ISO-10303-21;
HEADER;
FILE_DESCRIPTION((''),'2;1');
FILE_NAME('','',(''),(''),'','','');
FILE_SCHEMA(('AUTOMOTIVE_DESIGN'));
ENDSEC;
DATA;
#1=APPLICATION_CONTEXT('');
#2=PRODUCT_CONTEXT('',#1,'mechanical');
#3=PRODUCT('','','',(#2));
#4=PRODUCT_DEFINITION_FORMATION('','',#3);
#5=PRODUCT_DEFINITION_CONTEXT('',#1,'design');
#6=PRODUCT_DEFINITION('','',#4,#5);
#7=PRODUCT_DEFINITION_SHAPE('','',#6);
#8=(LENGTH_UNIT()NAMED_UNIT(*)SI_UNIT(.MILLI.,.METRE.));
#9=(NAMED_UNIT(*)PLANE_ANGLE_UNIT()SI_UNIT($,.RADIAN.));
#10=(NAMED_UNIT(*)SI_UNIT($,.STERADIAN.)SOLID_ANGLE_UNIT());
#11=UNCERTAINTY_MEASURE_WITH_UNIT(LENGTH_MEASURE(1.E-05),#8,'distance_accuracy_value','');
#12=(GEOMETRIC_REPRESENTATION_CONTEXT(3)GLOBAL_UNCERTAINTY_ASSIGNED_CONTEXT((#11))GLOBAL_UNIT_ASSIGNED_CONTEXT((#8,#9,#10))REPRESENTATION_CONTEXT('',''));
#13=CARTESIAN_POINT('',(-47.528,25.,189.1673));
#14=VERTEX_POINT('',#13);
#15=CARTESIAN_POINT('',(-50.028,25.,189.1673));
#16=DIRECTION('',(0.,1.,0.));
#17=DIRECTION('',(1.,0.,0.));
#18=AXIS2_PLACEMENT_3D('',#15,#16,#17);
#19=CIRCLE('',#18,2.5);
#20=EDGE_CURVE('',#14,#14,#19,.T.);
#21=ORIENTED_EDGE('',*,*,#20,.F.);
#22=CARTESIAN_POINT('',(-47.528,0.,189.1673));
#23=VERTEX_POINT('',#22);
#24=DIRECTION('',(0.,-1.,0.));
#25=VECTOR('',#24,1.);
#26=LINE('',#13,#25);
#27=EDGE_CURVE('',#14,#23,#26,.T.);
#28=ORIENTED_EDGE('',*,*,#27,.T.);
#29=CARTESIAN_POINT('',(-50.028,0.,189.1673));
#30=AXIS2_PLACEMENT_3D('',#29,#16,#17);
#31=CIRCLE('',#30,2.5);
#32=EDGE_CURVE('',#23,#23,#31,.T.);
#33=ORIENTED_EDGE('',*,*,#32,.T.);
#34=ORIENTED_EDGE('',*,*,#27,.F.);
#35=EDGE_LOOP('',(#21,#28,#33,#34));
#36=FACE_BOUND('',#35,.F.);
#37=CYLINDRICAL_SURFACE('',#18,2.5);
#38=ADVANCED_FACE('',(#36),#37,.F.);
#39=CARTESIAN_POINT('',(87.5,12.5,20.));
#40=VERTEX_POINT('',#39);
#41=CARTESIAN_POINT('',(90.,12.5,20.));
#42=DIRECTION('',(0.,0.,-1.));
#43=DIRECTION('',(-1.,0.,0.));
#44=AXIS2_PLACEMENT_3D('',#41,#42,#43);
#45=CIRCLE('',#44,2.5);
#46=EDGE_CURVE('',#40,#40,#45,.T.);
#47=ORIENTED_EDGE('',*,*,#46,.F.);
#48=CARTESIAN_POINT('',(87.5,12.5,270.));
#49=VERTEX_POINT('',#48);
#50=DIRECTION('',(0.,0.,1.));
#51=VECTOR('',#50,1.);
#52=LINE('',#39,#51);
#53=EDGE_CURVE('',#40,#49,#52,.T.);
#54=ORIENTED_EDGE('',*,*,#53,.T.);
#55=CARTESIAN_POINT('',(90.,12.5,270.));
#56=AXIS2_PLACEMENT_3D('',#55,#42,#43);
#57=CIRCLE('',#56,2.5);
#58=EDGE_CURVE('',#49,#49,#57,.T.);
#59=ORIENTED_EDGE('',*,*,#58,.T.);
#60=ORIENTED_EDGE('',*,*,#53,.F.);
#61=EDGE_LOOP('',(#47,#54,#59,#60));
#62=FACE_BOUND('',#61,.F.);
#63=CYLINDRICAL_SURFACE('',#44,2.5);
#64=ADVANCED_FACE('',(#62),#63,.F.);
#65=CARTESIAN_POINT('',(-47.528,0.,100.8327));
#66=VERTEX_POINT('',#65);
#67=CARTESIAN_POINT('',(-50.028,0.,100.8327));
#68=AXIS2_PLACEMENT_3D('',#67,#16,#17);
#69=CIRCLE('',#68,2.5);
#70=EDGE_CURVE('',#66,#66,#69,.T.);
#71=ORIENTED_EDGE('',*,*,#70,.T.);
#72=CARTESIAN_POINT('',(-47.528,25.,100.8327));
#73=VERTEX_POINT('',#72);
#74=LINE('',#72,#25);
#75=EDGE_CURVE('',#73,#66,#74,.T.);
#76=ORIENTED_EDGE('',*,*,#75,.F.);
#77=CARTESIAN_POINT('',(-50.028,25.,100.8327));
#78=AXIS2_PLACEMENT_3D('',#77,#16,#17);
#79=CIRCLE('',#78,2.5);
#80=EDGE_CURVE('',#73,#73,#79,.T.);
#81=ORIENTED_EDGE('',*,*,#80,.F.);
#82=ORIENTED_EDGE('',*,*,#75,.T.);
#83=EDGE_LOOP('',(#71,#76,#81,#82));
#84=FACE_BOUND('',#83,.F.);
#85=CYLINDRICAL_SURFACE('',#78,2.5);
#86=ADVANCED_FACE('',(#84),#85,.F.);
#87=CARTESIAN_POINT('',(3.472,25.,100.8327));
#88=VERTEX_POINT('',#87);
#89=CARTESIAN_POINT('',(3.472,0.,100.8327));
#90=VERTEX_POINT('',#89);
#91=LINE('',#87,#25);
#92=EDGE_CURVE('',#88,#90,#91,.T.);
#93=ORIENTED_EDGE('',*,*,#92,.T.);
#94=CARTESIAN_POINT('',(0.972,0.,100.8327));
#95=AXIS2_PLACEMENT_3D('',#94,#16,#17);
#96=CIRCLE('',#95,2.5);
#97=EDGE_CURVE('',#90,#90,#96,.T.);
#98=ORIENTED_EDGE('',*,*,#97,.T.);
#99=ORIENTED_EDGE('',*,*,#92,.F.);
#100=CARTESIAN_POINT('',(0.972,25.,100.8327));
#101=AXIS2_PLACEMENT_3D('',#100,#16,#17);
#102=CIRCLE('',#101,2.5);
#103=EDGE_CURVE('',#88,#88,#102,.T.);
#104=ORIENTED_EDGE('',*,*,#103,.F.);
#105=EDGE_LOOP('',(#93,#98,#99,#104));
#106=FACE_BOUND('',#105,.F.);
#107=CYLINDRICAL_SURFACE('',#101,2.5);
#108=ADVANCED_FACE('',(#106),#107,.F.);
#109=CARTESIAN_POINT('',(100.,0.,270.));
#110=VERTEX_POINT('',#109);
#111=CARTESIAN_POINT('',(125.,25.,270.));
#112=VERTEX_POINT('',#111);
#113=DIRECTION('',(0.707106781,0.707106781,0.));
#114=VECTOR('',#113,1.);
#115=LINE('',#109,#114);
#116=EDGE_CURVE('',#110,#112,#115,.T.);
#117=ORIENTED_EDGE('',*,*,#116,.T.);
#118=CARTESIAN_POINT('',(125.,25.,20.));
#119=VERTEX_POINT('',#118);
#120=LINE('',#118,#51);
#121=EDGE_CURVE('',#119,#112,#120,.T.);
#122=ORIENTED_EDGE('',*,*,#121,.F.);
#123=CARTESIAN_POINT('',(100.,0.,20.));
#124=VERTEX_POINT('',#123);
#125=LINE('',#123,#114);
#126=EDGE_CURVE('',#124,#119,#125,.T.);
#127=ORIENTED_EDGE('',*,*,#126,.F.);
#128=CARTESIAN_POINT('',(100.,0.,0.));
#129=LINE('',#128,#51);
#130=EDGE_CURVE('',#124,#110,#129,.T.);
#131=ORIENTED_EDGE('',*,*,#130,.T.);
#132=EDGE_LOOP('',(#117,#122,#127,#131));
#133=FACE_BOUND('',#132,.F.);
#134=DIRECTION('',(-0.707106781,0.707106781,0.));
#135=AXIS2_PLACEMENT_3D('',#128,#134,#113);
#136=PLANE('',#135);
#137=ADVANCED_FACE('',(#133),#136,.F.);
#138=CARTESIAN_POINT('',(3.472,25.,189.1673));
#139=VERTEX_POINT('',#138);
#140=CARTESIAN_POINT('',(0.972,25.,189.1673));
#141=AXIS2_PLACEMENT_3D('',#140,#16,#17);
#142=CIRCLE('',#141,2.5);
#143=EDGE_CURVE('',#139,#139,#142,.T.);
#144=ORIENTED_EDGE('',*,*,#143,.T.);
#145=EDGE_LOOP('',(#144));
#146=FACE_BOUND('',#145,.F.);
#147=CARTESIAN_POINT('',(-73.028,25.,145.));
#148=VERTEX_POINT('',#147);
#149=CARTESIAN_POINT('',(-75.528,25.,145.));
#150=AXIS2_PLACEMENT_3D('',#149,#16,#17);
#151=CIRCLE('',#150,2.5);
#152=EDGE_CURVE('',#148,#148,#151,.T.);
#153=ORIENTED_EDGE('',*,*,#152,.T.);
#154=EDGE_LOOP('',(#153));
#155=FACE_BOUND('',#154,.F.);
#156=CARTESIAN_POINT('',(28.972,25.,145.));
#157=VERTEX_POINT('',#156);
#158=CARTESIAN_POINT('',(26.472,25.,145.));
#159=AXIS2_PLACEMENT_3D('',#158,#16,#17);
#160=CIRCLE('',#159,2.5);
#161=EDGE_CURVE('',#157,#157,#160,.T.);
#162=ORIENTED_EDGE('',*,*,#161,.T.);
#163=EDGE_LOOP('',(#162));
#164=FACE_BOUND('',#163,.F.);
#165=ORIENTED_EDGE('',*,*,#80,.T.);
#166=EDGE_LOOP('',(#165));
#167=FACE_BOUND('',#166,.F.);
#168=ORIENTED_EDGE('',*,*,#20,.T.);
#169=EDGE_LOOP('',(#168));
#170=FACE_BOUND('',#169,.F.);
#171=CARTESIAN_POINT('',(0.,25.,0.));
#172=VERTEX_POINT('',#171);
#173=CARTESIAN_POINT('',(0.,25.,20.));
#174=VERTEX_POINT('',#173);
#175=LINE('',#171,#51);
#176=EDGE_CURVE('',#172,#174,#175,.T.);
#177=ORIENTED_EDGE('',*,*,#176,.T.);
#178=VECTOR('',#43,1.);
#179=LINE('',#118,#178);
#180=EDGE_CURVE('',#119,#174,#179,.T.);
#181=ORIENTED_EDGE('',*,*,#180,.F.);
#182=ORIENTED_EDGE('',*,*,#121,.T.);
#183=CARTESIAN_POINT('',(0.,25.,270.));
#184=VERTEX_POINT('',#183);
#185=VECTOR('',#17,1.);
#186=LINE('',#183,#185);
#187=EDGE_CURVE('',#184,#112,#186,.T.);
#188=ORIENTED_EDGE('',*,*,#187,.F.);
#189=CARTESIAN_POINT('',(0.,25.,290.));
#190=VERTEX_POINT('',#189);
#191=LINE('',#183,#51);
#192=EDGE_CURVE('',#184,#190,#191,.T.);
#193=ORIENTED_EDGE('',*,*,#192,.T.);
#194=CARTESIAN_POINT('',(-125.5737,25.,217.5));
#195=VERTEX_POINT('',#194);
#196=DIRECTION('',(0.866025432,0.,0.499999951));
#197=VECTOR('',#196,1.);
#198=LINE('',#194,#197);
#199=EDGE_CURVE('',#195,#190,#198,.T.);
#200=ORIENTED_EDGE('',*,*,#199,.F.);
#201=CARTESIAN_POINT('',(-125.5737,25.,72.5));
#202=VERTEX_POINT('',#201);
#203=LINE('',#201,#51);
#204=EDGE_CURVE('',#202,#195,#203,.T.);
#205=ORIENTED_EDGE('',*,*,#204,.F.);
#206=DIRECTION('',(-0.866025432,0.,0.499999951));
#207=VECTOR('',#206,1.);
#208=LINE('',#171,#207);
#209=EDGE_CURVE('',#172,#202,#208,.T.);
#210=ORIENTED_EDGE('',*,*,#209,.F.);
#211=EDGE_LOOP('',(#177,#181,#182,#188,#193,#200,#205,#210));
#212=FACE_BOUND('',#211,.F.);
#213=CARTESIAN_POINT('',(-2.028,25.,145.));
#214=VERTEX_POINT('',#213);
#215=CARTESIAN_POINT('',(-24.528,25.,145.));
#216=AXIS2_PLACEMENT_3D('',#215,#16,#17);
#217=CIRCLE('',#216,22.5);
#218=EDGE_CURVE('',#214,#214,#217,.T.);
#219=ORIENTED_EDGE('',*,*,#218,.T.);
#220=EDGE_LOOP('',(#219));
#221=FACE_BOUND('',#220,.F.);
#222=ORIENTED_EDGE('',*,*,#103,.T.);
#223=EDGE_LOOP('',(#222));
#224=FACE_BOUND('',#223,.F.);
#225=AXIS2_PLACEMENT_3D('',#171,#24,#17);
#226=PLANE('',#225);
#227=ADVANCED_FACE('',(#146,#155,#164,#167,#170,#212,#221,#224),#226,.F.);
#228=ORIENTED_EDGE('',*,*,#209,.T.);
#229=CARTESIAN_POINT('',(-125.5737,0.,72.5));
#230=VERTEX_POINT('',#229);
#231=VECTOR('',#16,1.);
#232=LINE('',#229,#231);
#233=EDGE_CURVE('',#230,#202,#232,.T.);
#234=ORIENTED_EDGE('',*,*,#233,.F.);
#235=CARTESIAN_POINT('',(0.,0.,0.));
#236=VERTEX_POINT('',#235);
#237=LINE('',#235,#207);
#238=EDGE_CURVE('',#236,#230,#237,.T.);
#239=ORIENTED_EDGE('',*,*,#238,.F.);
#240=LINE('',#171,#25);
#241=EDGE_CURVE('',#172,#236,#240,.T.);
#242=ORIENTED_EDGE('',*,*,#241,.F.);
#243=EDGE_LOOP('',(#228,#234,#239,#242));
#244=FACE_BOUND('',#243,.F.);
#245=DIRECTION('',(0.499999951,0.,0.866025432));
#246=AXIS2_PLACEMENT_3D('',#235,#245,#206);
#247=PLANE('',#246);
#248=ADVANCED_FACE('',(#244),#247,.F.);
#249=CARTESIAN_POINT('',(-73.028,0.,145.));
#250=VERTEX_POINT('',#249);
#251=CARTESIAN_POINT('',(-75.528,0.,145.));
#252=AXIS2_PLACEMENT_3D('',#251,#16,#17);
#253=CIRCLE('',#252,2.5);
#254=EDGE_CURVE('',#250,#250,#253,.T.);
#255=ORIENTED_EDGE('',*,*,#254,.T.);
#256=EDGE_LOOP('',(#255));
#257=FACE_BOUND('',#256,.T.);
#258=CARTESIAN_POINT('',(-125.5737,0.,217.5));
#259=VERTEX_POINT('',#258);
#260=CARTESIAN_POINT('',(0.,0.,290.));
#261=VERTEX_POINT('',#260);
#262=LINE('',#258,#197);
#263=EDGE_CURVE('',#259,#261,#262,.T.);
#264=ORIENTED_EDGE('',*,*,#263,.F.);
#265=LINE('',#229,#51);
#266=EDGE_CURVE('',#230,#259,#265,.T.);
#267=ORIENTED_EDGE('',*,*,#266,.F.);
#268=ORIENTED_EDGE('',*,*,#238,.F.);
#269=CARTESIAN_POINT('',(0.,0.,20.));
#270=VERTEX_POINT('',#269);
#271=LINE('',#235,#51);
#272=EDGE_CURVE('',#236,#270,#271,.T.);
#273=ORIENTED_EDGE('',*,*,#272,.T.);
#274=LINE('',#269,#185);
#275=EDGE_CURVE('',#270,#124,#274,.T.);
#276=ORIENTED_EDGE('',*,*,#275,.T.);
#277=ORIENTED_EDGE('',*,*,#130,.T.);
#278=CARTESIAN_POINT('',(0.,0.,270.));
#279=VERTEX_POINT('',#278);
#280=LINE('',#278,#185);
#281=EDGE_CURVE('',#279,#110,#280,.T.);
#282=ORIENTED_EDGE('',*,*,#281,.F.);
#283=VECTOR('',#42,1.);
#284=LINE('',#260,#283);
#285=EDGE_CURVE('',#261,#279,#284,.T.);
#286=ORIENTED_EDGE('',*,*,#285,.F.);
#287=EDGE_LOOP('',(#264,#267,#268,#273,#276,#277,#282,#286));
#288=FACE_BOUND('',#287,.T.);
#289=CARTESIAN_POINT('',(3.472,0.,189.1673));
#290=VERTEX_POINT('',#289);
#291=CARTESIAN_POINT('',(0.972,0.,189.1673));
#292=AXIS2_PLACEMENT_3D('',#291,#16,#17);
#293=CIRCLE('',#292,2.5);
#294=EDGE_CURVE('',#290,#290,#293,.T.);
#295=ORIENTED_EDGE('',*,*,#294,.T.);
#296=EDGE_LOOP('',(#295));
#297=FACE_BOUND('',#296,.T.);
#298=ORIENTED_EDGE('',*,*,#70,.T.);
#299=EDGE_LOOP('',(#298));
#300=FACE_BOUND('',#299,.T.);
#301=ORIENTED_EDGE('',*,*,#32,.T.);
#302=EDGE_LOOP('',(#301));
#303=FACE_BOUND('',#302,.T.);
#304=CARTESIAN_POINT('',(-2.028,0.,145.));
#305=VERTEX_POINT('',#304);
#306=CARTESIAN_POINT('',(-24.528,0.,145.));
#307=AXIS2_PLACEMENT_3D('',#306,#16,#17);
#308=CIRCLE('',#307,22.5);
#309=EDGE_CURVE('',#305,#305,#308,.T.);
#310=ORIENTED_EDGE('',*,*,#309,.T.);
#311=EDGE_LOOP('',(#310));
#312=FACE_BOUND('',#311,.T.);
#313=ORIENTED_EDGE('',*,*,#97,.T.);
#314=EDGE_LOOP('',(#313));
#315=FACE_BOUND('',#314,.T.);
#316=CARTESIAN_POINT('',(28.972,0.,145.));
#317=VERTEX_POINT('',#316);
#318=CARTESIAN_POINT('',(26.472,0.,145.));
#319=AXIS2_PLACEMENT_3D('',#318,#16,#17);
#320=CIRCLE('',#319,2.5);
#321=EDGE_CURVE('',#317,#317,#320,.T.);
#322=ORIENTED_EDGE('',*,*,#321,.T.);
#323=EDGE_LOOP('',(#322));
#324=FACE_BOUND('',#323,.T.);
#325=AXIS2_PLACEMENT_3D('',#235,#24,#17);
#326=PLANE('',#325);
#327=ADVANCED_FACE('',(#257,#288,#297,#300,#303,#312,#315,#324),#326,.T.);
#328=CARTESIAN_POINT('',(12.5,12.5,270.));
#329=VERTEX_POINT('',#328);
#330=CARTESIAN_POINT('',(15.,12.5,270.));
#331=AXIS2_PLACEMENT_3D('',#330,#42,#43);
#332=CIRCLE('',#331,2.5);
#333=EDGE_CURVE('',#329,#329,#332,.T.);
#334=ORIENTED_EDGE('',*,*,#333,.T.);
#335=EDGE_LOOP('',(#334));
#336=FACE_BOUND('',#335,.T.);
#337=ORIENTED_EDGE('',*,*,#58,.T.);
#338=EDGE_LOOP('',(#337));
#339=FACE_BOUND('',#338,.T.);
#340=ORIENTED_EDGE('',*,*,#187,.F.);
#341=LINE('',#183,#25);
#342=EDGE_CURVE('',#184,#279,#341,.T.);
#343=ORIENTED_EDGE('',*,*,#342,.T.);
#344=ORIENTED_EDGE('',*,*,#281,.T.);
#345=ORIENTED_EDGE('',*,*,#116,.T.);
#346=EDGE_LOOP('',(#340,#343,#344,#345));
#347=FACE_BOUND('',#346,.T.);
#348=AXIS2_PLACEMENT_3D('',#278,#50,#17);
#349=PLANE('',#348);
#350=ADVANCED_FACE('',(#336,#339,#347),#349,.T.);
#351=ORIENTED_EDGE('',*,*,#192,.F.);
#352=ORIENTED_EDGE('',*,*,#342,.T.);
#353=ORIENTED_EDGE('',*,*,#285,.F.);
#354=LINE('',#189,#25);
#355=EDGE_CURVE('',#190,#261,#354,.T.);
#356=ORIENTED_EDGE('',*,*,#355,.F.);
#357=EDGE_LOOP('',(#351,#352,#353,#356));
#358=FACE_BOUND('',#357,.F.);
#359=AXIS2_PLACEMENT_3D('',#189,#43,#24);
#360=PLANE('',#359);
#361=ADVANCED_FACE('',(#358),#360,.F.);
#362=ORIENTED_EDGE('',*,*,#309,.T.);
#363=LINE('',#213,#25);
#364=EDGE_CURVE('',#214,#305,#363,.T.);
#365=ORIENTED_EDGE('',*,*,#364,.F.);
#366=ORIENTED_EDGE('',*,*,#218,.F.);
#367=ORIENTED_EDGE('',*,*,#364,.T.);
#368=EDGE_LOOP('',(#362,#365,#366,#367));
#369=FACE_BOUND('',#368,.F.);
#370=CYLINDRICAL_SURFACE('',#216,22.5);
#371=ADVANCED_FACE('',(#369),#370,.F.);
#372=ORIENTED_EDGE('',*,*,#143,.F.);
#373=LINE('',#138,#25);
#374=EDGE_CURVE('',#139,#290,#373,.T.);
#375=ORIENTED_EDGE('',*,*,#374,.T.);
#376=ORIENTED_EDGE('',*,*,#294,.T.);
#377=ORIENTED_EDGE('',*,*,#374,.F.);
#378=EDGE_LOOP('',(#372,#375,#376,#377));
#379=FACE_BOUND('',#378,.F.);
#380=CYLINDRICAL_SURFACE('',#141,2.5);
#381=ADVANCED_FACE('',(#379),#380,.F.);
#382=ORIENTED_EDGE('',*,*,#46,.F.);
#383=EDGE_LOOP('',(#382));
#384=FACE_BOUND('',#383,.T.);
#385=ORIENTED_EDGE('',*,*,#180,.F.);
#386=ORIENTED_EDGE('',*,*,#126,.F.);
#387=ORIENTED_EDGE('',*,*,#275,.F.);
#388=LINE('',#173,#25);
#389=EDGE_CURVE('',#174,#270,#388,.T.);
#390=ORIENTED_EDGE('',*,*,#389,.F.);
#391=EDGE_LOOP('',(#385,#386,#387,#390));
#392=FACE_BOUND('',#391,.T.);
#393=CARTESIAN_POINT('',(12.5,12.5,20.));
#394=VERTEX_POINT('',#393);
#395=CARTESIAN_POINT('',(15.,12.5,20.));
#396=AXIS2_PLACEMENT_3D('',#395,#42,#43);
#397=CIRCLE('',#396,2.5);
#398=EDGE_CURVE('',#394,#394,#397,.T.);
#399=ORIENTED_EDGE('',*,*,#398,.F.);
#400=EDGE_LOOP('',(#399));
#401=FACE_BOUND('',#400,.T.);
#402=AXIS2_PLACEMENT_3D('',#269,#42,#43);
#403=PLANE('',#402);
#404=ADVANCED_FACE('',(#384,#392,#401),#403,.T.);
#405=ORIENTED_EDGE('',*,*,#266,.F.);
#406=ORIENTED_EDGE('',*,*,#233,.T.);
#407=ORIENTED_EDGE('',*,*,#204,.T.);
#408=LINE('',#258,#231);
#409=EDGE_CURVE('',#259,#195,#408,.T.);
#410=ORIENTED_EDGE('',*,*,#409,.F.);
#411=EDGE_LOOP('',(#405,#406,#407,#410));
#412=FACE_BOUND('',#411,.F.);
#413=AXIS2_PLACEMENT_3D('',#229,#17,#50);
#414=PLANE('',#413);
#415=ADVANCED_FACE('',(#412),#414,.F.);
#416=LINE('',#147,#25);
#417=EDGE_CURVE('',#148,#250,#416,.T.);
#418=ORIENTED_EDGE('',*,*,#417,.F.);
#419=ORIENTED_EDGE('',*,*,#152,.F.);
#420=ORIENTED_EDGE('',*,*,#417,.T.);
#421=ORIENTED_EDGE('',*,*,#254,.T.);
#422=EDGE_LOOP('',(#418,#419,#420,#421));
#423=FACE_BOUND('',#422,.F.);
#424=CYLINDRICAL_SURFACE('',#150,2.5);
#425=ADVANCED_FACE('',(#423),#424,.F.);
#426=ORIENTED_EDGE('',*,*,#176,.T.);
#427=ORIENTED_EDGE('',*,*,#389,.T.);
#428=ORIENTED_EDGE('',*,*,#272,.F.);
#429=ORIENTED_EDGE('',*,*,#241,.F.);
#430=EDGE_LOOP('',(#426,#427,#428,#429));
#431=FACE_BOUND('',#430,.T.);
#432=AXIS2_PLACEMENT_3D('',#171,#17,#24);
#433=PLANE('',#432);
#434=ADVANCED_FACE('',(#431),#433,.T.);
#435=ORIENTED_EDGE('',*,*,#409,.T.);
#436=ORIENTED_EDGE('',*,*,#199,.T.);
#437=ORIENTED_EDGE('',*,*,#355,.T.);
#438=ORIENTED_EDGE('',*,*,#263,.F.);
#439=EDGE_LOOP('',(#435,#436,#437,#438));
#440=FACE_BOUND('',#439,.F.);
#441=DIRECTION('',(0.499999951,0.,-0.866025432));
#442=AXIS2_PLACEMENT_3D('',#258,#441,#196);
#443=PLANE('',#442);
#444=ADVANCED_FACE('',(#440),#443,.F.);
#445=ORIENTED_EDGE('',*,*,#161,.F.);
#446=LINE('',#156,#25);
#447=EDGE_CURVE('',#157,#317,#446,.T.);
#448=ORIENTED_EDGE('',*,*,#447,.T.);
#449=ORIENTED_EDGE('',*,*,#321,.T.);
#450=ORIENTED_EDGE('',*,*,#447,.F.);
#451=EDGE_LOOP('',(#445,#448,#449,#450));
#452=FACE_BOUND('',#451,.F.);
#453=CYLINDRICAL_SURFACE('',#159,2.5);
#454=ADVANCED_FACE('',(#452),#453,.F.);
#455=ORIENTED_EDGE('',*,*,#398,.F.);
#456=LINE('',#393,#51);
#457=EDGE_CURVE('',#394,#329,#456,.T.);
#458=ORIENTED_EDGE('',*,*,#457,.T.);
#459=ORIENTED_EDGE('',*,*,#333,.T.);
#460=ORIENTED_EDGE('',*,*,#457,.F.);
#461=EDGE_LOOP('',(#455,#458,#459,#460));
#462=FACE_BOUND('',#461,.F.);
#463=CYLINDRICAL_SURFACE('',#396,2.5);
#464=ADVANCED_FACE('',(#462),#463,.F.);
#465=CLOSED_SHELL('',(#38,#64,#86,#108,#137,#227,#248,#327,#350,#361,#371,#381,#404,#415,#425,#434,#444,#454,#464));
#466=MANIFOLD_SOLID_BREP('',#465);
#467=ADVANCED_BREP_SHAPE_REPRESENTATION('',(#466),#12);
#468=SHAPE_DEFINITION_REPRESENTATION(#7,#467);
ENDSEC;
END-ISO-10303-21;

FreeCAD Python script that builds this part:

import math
import FreeCAD as App
import Part
import Sketcher

V = App.Vector
Q = App.Units.Quantity

doc = App.newDocument("Part")
params = doc.addObject("Spreadsheet::Sheet", "Params")
for row, (alias, value) in enumerate([
    ("sketch1_diameter", "8 mm"),
    ("sketch1_width", "100 mm"),
    ("sketch1_height", "25 mm"),
    ("pad1_length", "20 mm"),
    ("sketch2_width", "100 mm"),
    ("sketch2_width2", "125 mm"),
    ("sketch2_height", "25 mm"),
    ("pad2_length", "250 mm"),
    ("sketch3_diameter", "8 mm"),
    ("sketch3_width", "100 mm"),
    ("sketch3_height", "25 mm"),
    ("pad3_length", "20 mm"),
    ("sketch4_height", "290 mm"),
    ("sketch4_height2", "145 mm"),
    ("pad4_length", "25 mm"),
    ("sketch5_diameter", "6 mm"),
    ("sketch5_diameter2", "3 mm"),
    ("sketch6_diameter", "24 mm"),
    ("sketch6_diameter2", "6 mm"),
    ("pocket2_length", "5 mm"),
    ("sketch7_diameter", "25 mm"),
    ("sketch7_diameter2", "8 mm"),
    ("pocket3_length", "7 mm"),
    ("sketch8_diameter", "4 mm"),
    ("sketch8_diameter2", "8 mm"),
    ("sketch9_radius", "4 mm"),
    ("pocket5_length", "3 mm"),
    ("sketch10_diameter", "4 mm"),
    ("sketch11_width", "100 mm"),
    ("sketch11_height", "25 mm"),
    ("pocket7_length", "20 mm"),
    ("sketch12_diameter", "8 mm"),
    ("sketch12_width", "100 mm"),
    ("sketch12_height", "25 mm"),
    ("pocket8_length", "20 mm"),
    ("sketch13_diameter", "5 mm"),
    ("sketch14_diameter", "45 mm"),
    ("sketch15_diameter", "5 mm"),
], start=1):
    params.set(f"A{row}", alias)
    params.set(f"B{row}", "=" + value)
    params.setAlias(f"B{row}", alias)

body = doc.addObject("PartDesign::Body", "Body")

sketch1 = body.newObject("Sketcher::SketchObject", "Sketch")
sketch1.AttachmentSupport = (doc.getObject("XY_Plane"), [""])
sketch1.MapMode = "FlatFace"
sketch1.addGeometry(Part.LineSegment(V(0, 25, 0), V(0, 0, 0)), False)
sketch1.addGeometry(Part.LineSegment(V(0, 0, 0), V(100, 0, 0)), False)
sketch1.addGeometry(Part.LineSegment(V(100, 0, 0), V(213.7922, 113.7922, 0)), False)
sketch1.addGeometry(Part.LineSegment(V(213.7922, 113.7922, 0), V(200.5844, 163.0844, 0)), False)
sketch1.addGeometry(Part.LineSegment(V(200.5844, 163.0844, 0), V(151.2922, 176.2922, 0)), False)
sketch1.addGeometry(Part.LineSegment(V(151.2922, 176.2922, 0), V(0, 25, 0)), False)
sketch1.addGeometry(Part.Circle(V(164.5, 127, 0), V(0, 0, 1), 4), False)
sketch1.addConstraint(Sketcher.Constraint("Coincident", 0, 2, 1, 1))
sketch1.addConstraint(Sketcher.Constraint("Coincident", 1, 2, 2, 1))
sketch1.addConstraint(Sketcher.Constraint("Coincident", 2, 2, 3, 1))
sketch1.addConstraint(Sketcher.Constraint("Coincident", 3, 2, 4, 1))
sketch1.addConstraint(Sketcher.Constraint("Coincident", 4, 2, 5, 1))
sketch1.addConstraint(Sketcher.Constraint("Coincident", 5, 2, 0, 1))
sketch1.addConstraint(Sketcher.Constraint("Vertical", 0))
sketch1.addConstraint(Sketcher.Constraint("Horizontal", 1))
sketch1.addConstraint(Sketcher.Constraint("Coincident", 0, 2, -1, 1))
sketch1.addConstraint(Sketcher.Constraint("Parallel", 2, 5))
sketch1.addConstraint(Sketcher.Constraint("Equal", 3, 4))
sketch1.addConstraint(Sketcher.Constraint("Diameter", 6, 8.0))
sketch1.addConstraint(Sketcher.Constraint("DistanceX", 1, 1, 1, 2, 100.0))
sketch1.addConstraint(Sketcher.Constraint("DistanceY", 0, 2, 0, 1, 25.0))
sketch1.addConstraint(Sketcher.Constraint("Angle", 2, Q("45 deg")))
sketch1.addConstraint(Sketcher.Constraint("DistanceY", -1, 1, 6, 3, 127.0))
sketch1.addConstraint(Sketcher.Constraint("Angle", 3, Q("105 deg")))
sketch1.addConstraint(Sketcher.Constraint("Angle", 4, Q("165 deg")))
sketch1.addConstraint(Sketcher.Constraint("DistanceX", -1, 1, 6, 3, 164.5))
sketch1.addConstraint(Sketcher.Constraint("Distance", 2, 160.9265))
sketch1.setExpression("Constraints[11]", "Params.sketch1_diameter")
sketch1.setExpression("Constraints[12]", "Params.sketch1_width")
sketch1.setExpression("Constraints[13]", "Params.sketch1_height")
pad1 = body.newObject("PartDesign::Pad", "Pad")
pad1.Profile = sketch1
pad1.setExpression("Length", "Params.pad1_length")

sketch2 = body.newObject("Sketcher::SketchObject", "Sketch001")
sketch2.AttachmentSupport = (doc.getObject("XY_Plane"), [""])
sketch2.MapMode = "FlatFace"
sketch2.AttachmentOffset = App.Placement(V(0, 0, 20), App.Rotation())
sketch2.addGeometry(Part.LineSegment(V(0, 25, 0), V(0, 0, 0)), False)
sketch2.addGeometry(Part.LineSegment(V(0, 0, 0), V(100, 0, 0)), False)
sketch2.addGeometry(Part.LineSegment(V(100, 0, 0), V(125, 25, 0)), False)
sketch2.addGeometry(Part.LineSegment(V(125, 25, 0), V(0, 25, 0)), False)
sketch2.addConstraint(Sketcher.Constraint("Coincident", 0, 2, 1, 1))
sketch2.addConstraint(Sketcher.Constraint("Coincident", 1, 2, 2, 1))
sketch2.addConstraint(Sketcher.Constraint("Coincident", 2, 2, 3, 1))
sketch2.addConstraint(Sketcher.Constraint("Coincident", 3, 2, 0, 1))
sketch2.addConstraint(Sketcher.Constraint("Vertical", 0))
sketch2.addConstraint(Sketcher.Constraint("Horizontal", 1))
sketch2.addConstraint(Sketcher.Constraint("Horizontal", 3))
sketch2.addConstraint(Sketcher.Constraint("Coincident", 0, 2, -1, 1))
sketch2.addConstraint(Sketcher.Constraint("DistanceX", 1, 1, 1, 2, 100.0))
sketch2.addConstraint(Sketcher.Constraint("DistanceX", 3, 2, 3, 1, 125.0))
sketch2.addConstraint(Sketcher.Constraint("DistanceY", 0, 2, 0, 1, 25.0))
sketch2.setExpression("Constraints[8]", "Params.sketch2_width")
sketch2.setExpression("Constraints[9]", "Params.sketch2_width2")
sketch2.setExpression("Constraints[10]", "Params.sketch2_height")
pad2 = body.newObject("PartDesign::Pad", "Pad001")
pad2.Profile = sketch2
pad2.setExpression("Length", "Params.pad2_length")

sketch3 = body.newObject("Sketcher::SketchObject", "Sketch002")
sketch3.AttachmentSupport = (doc.getObject("XY_Plane"), [""])
sketch3.MapMode = "FlatFace"
sketch3.AttachmentOffset = App.Placement(V(0, 0, 270), App.Rotation())
sketch3.addGeometry(Part.LineSegment(V(151.2922, 176.2922, 0), V(0, 25, 0)), False)
sketch3.addGeometry(Part.LineSegment(V(0, 25, 0), V(0, 0, 0)), False)
sketch3.addGeometry(Part.LineSegment(V(0, 0, 0), V(100, 0, 0)), False)
sketch3.addGeometry(Part.LineSegment(V(100, 0, 0), V(213.7922, 113.7922, 0)), False)
sketch3.addGeometry(Part.LineSegment(V(213.7922, 113.7922, 0), V(200.5844, 163.0844, 0)), False)
sketch3.addGeometry(Part.LineSegment(V(200.5844, 163.0844, 0), V(151.2922, 176.2922, 0)), False)
sketch3.addGeometry(Part.Circle(V(164.5, 127, 0), V(0, 0, 1), 4), False)
sketch3.addConstraint(Sketcher.Constraint("Coincident", 0, 2, 1, 1))
sketch3.addConstraint(Sketcher.Constraint("Coincident", 1, 2, 2, 1))
sketch3.addConstraint(Sketcher.Constraint("Coincident", 2, 2, 3, 1))
sketch3.addConstraint(Sketcher.Constraint("Coincident", 3, 2, 4, 1))
sketch3.addConstraint(Sketcher.Constraint("Coincident", 4, 2, 5, 1))
sketch3.addConstraint(Sketcher.Constraint("Coincident", 5, 2, 0, 1))
sketch3.addConstraint(Sketcher.Constraint("Vertical", 1))
sketch3.addConstraint(Sketcher.Constraint("Horizontal", 2))
sketch3.addConstraint(Sketcher.Constraint("Coincident", 1, 2, -1, 1))
sketch3.addConstraint(Sketcher.Constraint("Parallel", 0, 3))
sketch3.addConstraint(Sketcher.Constraint("Equal", 4, 5))
sketch3.addConstraint(Sketcher.Constraint("Diameter", 6, 8.0))
sketch3.addConstraint(Sketcher.Constraint("DistanceX", 2, 1, 2, 2, 100.0))
sketch3.addConstraint(Sketcher.Constraint("DistanceY", 1, 2, 1, 1, 25.0))
sketch3.addConstraint(Sketcher.Constraint("Angle", 0, Q("-135 deg")))
sketch3.addConstraint(Sketcher.Constraint("Angle", 4, Q("105 deg")))
sketch3.addConstraint(Sketcher.Constraint("Angle", 5, Q("165 deg")))
sketch3.addConstraint(Sketcher.Constraint("DistanceY", -1, 1, 6, 3, 127.0))
sketch3.addConstraint(Sketcher.Constraint("DistanceX", -1, 1, 6, 3, 164.5))
sketch3.addConstraint(Sketcher.Constraint("Distance", 0, 213.9595))
sketch3.setExpression("Constraints[11]", "Params.sketch3_diameter")
sketch3.setExpression("Constraints[12]", "Params.sketch3_width")
sketch3.setExpression("Constraints[13]", "Params.sketch3_height")
pad3 = body.newObject("PartDesign::Pad", "Pad002")
pad3.Profile = sketch3
pad3.setExpression("Length", "Params.pad3_length")

sketch4 = body.newObject("Sketcher::SketchObject", "Sketch003")
sketch4.AttachmentSupport = (doc.getObject("XZ_Plane"), [""])
sketch4.MapMode = "FlatFace"
sketch4.addGeometry(Part.LineSegment(V(-125.5737, 72.5, 0), V(0, 0, 0)), False)
sketch4.addGeometry(Part.LineSegment(V(0, 0, 0), V(0, 290, 0)), False)
sketch4.addGeometry(Part.LineSegment(V(0, 290, 0), V(-125.5737, 217.5, 0)), False)
sketch4.addGeometry(Part.LineSegment(V(-125.5737, 217.5, 0), V(-125.5737, 72.5, 0)), False)
sketch4.addConstraint(Sketcher.Constraint("Coincident", 0, 2, 1, 1))
sketch4.addConstraint(Sketcher.Constraint("Coincident", 1, 2, 2, 1))
sketch4.addConstraint(Sketcher.Constraint("Coincident", 2, 2, 3, 1))
sketch4.addConstraint(Sketcher.Constraint("Coincident", 3, 2, 0, 1))
sketch4.addConstraint(Sketcher.Constraint("Vertical", 1))
sketch4.addConstraint(Sketcher.Constraint("Vertical", 3))
sketch4.addConstraint(Sketcher.Constraint("Coincident", 0, 2, -1, 1))
sketch4.addConstraint(Sketcher.Constraint("Equal", 0, 2))
sketch4.addConstraint(Sketcher.Constraint("DistanceY", 1, 1, 1, 2, 290.0))
sketch4.addConstraint(Sketcher.Constraint("DistanceY", 3, 2, 3, 1, 145.0))
sketch4.addConstraint(Sketcher.Constraint("Angle", 0, Q("-30 deg")))
sketch4.setExpression("Constraints[8]", "Params.sketch4_height")
sketch4.setExpression("Constraints[9]", "Params.sketch4_height2")
pad4 = body.newObject("PartDesign::Pad", "Pad003")
pad4.Profile = sketch4
pad4.setExpression("Length", "Params.pad4_length")
pad4.Reversed = True

sketch5 = body.newObject("Sketcher::SketchObject", "Sketch004")
sketch5.AttachmentSupport = (doc.getObject("XZ_Plane"), [""])
sketch5.MapMode = "FlatFace"
sketch5.AttachmentOffset = App.Placement(V(0, 0, -25), App.Rotation())
sketch5.addGeometry(Part.Circle(V(-24.528, 145, 0), V(0, 0, 1), 3), False)
sketch5.addGeometry(Part.Circle(V(-31.528, 145, 0), V(0, 0, 1), 1.5), False)
sketch5.addGeometry(Part.Circle(V(-21.028, 151.0622, 0), V(0, 0, 1), 1.5), False)
sketch5.addGeometry(Part.Circle(V(-21.028, 138.9378, 0), V(0, 0, 1), 1.5), False)
sketch5.addConstraint(Sketcher.Constraint("Equal", 1, 2))
sketch5.addConstraint(Sketcher.Constraint("Equal", 2, 3))
sketch5.addConstraint(Sketcher.Constraint("Horizontal", 0, 3, 1, 3))
sketch5.addConstraint(Sketcher.Constraint("Vertical", 2, 3, 3, 3))
sketch5.addConstraint(Sketcher.Constraint("Diameter", 0, 6.0))
sketch5.addConstraint(Sketcher.Constraint("Diameter", 1, 3.0))
sketch5.addConstraint(Sketcher.Constraint("DistanceX", 1, 3, 0, 3, 7.0))
sketch5.addConstraint(Sketcher.Constraint("DistanceY", -1, 1, 0, 3, 145.0))
sketch5.addConstraint(Sketcher.Constraint("DistanceX", 0, 3, 2, 3, 3.5))
sketch5.addConstraint(Sketcher.Constraint("DistanceX", 0, 3, -1, 1, 24.528))
sketch5.addConstraint(Sketcher.Constraint("DistanceY", -1, 1, 2, 3, 151.0622))
sketch5.addConstraint(Sketcher.Constraint("DistanceY", -1, 1, 3, 3, 138.9378))
sketch5.setExpression("Constraints[4]", "Params.sketch5_diameter")
sketch5.setExpression("Constraints[5]", "Params.sketch5_diameter2")
pocket1 = body.newObject("PartDesign::Pocket", "Pocket")
pocket1.Profile = sketch5
pocket1.Type = "ThroughAll"
pocket1.Reversed = True

sketch6 = body.newObject("Sketcher::SketchObject", "Sketch005")
sketch6.AttachmentSupport = (doc.getObject("XZ_Plane"), [""])
sketch6.MapMode = "FlatFace"
sketch6.addGeometry(Part.Circle(V(-24.528, 145, 0), V(0, 0, 1), 12), False)
sketch6.addGeometry(Part.Circle(V(-24.528, 145, 0), V(0, 0, 1), 3), False)
sketch6.addConstraint(Sketcher.Constraint("Coincident", 1, 3, 0, 3))
sketch6.addConstraint(Sketcher.Constraint("Diameter", 0, 24.0))
sketch6.addConstraint(Sketcher.Constraint("Diameter", 1, 6.0))
sketch6.addConstraint(Sketcher.Constraint("DistanceY", -1, 1, 0, 3, 145.0))
sketch6.addConstraint(Sketcher.Constraint("DistanceX", 0, 3, -1, 1, 24.528))
sketch6.setExpression("Constraints[1]", "Params.sketch6_diameter")
sketch6.setExpression("Constraints[2]", "Params.sketch6_diameter2")
pocket2 = body.newObject("PartDesign::Pocket", "Pocket001")
pocket2.Profile = sketch6
pocket2.setExpression("Length", "Params.pocket2_length")

sketch7 = body.newObject("Sketcher::SketchObject", "Sketch006")
sketch7.AttachmentSupport = (doc.getObject("XY_Plane"), [""])
sketch7.MapMode = "FlatFace"
sketch7.AttachmentOffset = App.Placement(V(0, 0, 270), App.Rotation())
sketch7.addGeometry(Part.Circle(V(164.5, 127, 0), V(0, 0, 1), 12.5), False)
sketch7.addGeometry(Part.Circle(V(164.5, 127, 0), V(0, 0, 1), 4), False)
sketch7.addConstraint(Sketcher.Constraint("Coincident", 1, 3, 0, 3))
sketch7.addConstraint(Sketcher.Constraint("Diameter", 0, 25.0))
sketch7.addConstraint(Sketcher.Constraint("Diameter", 1, 8.0))
sketch7.addConstraint(Sketcher.Constraint("DistanceY", -1, 1, 0, 3, 127.0))
sketch7.addConstraint(Sketcher.Constraint("DistanceX", -1, 1, 0, 3, 164.5))
sketch7.setExpression("Constraints[1]", "Params.sketch7_diameter")
sketch7.setExpression("Constraints[2]", "Params.sketch7_diameter2")
pocket3 = body.newObject("PartDesign::Pocket", "Pocket002")
pocket3.Profile = sketch7
pocket3.setExpression("Length", "Params.pocket3_length")
pocket3.Reversed = True

sketch8 = body.newObject("Sketcher::SketchObject", "Sketch007")
sketch8.AttachmentSupport = (doc.getObject("XY_Plane"), [""])
sketch8.MapMode = "FlatFace"
sketch8.AttachmentOffset = App.Placement(V(0, 0, 277), App.Rotation())
sketch8.addGeometry(Part.Circle(V(157.5, 127, 0), V(0, 0, 1), 2), False)
sketch8.addGeometry(Part.Circle(V(164.5, 127, 0), V(0, 0, 1), 4), False)
sketch8.addGeometry(Part.Circle(V(168, 133.0622, 0), V(0, 0, 1), 2), False)
sketch8.addGeometry(Part.Circle(V(168, 120.9378, 0), V(0, 0, 1), 2), False)
sketch8.addConstraint(Sketcher.Constraint("Equal", 0, 2))
sketch8.addConstraint(Sketcher.Constraint("Equal", 2, 3))
sketch8.addConstraint(Sketcher.Constraint("Horizontal", 0, 3, 1, 3))
sketch8.addConstraint(Sketcher.Constraint("Vertical", 2, 3, 3, 3))
sketch8.addConstraint(Sketcher.Constraint("Diameter", 0, 4.0))
sketch8.addConstraint(Sketcher.Constraint("Diameter", 1, 8.0))
sketch8.addConstraint(Sketcher.Constraint("DistanceX", 0, 3, 1, 3, 7.0))
sketch8.addConstraint(Sketcher.Constraint("DistanceY", -1, 1, 0, 3, 127.0))
sketch8.addConstraint(Sketcher.Constraint("DistanceX", -1, 1, 2, 3, 168.0))
sketch8.addConstraint(Sketcher.Constraint("DistanceX", -1, 1, 0, 3, 157.5))
sketch8.addConstraint(Sketcher.Constraint("DistanceY", -1, 1, 2, 3, 133.0622))
sketch8.addConstraint(Sketcher.Constraint("DistanceY", -1, 1, 3, 3, 120.9378))
sketch8.setExpression("Constraints[4]", "Params.sketch8_diameter")
sketch8.setExpression("Constraints[5]", "Params.sketch8_diameter2")
pocket4 = body.newObject("PartDesign::Pocket", "Pocket003")
pocket4.Profile = sketch8
pocket4.Type = "ThroughAll"
pocket4.Reversed = True

sketch9 = body.newObject("Sketcher::SketchObject", "Sketch008")
sketch9.AttachmentSupport = (doc.getObject("XY_Plane"), [""])
sketch9.MapMode = "FlatFace"
sketch9.AttachmentOffset = App.Placement(V(0, 0, 290), App.Rotation())
sketch9.addGeometry(Part.ArcOfCircle(Part.Circle(V(164.5, 127, 0), V(0, 0, 1), 4), math.radians(88.954831), math.radians(151.044976)), False)
sketch9.addGeometry(Part.ArcOfCircle(Part.Circle(V(157.5, 127, 0), V(0, 0, 1), 4), math.radians(28.955024), math.radians(331.044976)), False)
sketch9.addGeometry(Part.ArcOfCircle(Part.Circle(V(164.5, 127, 0), V(0, 0, 1), 4), math.radians(-151.044976), math.radians(-88.954831)), False)
sketch9.addGeometry(Part.ArcOfCircle(Part.Circle(V(168, 120.9378, 0), V(0, 0, 1), 4), math.radians(148.95465), math.radians(451.045169)), False)
sketch9.addGeometry(Part.ArcOfCircle(Part.Circle(V(164.5, 127, 0), V(0, 0, 1), 4), math.radians(-31.04535), math.radians(31.04535)), False)
sketch9.addGeometry(Part.ArcOfCircle(Part.Circle(V(168, 133.0622, 0), V(0, 0, 1), 4), math.radians(-91.045169), math.radians(211.04535)), False)
sketch9.addConstraint(Sketcher.Constraint("Coincident", 0, 2, 1, 1))
sketch9.addConstraint(Sketcher.Constraint("Coincident", 1, 2, 2, 1))
sketch9.addConstraint(Sketcher.Constraint("Coincident", 2, 2, 3, 1))
sketch9.addConstraint(Sketcher.Constraint("Coincident", 3, 2, 4, 1))
sketch9.addConstraint(Sketcher.Constraint("Coincident", 4, 2, 5, 1))
sketch9.addConstraint(Sketcher.Constraint("Coincident", 5, 2, 0, 1))
sketch9.addConstraint(Sketcher.Constraint("Coincident", 2, 3, 0, 3))
sketch9.addConstraint(Sketcher.Constraint("Coincident", 4, 3, 0, 3))
sketch9.addConstraint(Sketcher.Constraint("Equal", 0, 1))
sketch9.addConstraint(Sketcher.Constraint("Equal", 1, 2))
sketch9.addConstraint(Sketcher.Constraint("Equal", 2, 3))
sketch9.addConstraint(Sketcher.Constraint("Equal", 3, 4))
sketch9.addConstraint(Sketcher.Constraint("Equal", 4, 5))
sketch9.addConstraint(Sketcher.Constraint("Horizontal", 0, 3, 1, 3))
sketch9.addConstraint(Sketcher.Constraint("Vertical", 3, 3, 5, 3))
sketch9.addConstraint(Sketcher.Constraint("Vertical", 3, 2, 4, 2))
sketch9.addConstraint(Sketcher.Constraint("Radius", 0, 4.0))
sketch9.addConstraint(Sketcher.Constraint("DistanceY", -1, 1, 0, 3, 127.0))
sketch9.addConstraint(Sketcher.Constraint("DistanceX", -1, 1, 3, 3, 168.0))
sketch9.addConstraint(Sketcher.Constraint("DistanceX", -1, 1, 0, 2, 161.0))
sketch9.addConstraint(Sketcher.Constraint("DistanceX", 1, 3, 0, 3, 7.0))
sketch9.addConstraint(Sketcher.Constraint("DistanceX", -1, 1, 2, 2, 164.573))
sketch9.setExpression("Constraints[16]", "Params.sketch9_radius")
pocket5 = body.newObject("PartDesign::Pocket", "Pocket004")
pocket5.Profile = sketch9
pocket5.setExpression("Length", "Params.pocket5_length")

sketch10 = body.newObject("Sketcher::SketchObject", "Sketch009")
sketch10.AttachmentSupport = (doc.getObject("YZ_Plane"), [""])
sketch10.MapMode = "FlatFace"
sketch10.AttachmentOffset = App.Placement(V(0, 0, 164.5), App.Rotation())
sketch10.addGeometry(Part.Circle(V(127, 273.5, 0), V(0, 0, 1), 2), False)
sketch10.addConstraint(Sketcher.Constraint("Diameter", 0, 4.0))
sketch10.addConstraint(Sketcher.Constraint("DistanceX", -1, 1, 0, 3, 127.0))
sketch10.addConstraint(Sketcher.Constraint("DistanceY", -1, 1, 0, 3, 273.5))
sketch10.setExpression("Constraints[0]", "Params.sketch10_diameter")
pocket6 = body.newObject("PartDesign::Pocket", "Pocket005")
pocket6.Profile = sketch10
pocket6.Type = "ThroughAll"
pocket6.Reversed = True

sketch11 = body.newObject("Sketcher::SketchObject", "Sketch010")
sketch11.AttachmentSupport = (doc.getObject("XY_Plane"), [""])
sketch11.MapMode = "FlatFace"
sketch11.AttachmentOffset = App.Placement(V(0, 0, 290), App.Rotation())
sketch11.addGeometry(Part.LineSegment(V(0, 0, 0), V(100, 0, 0)), False)
sketch11.addGeometry(Part.LineSegment(V(100, 0, 0), V(213.7922, 113.7922, 0)), False)
sketch11.addGeometry(Part.LineSegment(V(213.7922, 113.7922, 0), V(200.5844, 163.0844, 0)), False)
sketch11.addGeometry(Part.LineSegment(V(200.5844, 163.0844, 0), V(151.2922, 176.2922, 0)), False)
sketch11.addGeometry(Part.LineSegment(V(151.2922, 176.2922, 0), V(0, 25, 0)), False)
sketch11.addGeometry(Part.LineSegment(V(0, 25, 0), V(0, 0, 0)), False)
sketch11.addConstraint(Sketcher.Constraint("Coincident", 0, 2, 1, 1))
sketch11.addConstraint(Sketcher.Constraint("Coincident", 1, 2, 2, 1))
sketch11.addConstraint(Sketcher.Constraint("Coincident", 2, 2, 3, 1))
sketch11.addConstraint(Sketcher.Constraint("Coincident", 3, 2, 4, 1))
sketch11.addConstraint(Sketcher.Constraint("Coincident", 4, 2, 5, 1))
sketch11.addConstraint(Sketcher.Constraint("Coincident", 5, 2, 0, 1))
sketch11.addConstraint(Sketcher.Constraint("Horizontal", 0))
sketch11.addConstraint(Sketcher.Constraint("Vertical", 5))
sketch11.addConstraint(Sketcher.Constraint("Coincident", 5, 2, -1, 1))
sketch11.addConstraint(Sketcher.Constraint("Parallel", 1, 4))
sketch11.addConstraint(Sketcher.Constraint("Equal", 2, 3))
sketch11.addConstraint(Sketcher.Constraint("DistanceX", 0, 1, 0, 2, 100.0))
sketch11.addConstraint(Sketcher.Constraint("DistanceY", 5, 2, 5, 1, 25.0))
sketch11.addConstraint(Sketcher.Constraint("Angle", 1, Q("45 deg")))
sketch11.addConstraint(Sketcher.Constraint("Angle", 2, Q("105 deg")))
sketch11.addConstraint(Sketcher.Constraint("Angle", 3, Q("165 deg")))
sketch11.addConstraint(Sketcher.Constraint("Distance", 1, 160.9265))
sketch11.setExpression("Constraints[11]", "Params.sketch11_width")
sketch11.setExpression("Constraints[12]", "Params.sketch11_height")
pocket7 = body.newObject("PartDesign::Pocket", "Pocket006")
pocket7.Profile = sketch11
pocket7.setExpression("Length", "Params.pocket7_length")

sketch12 = body.newObject("Sketcher::SketchObject", "Sketch011")
sketch12.AttachmentSupport = (doc.getObject("XY_Plane"), [""])
sketch12.MapMode = "FlatFace"
sketch12.addGeometry(Part.LineSegment(V(100, 0, 0), V(0, 0, 0)), False)
sketch12.addGeometry(Part.LineSegment(V(0, 0, 0), V(0, 25, 0)), False)
sketch12.addGeometry(Part.LineSegment(V(0, 25, 0), V(151.2922, 176.2922, 0)), False)
sketch12.addGeometry(Part.LineSegment(V(151.2922, 176.2922, 0), V(200.5844, 163.0844, 0)), False)
sketch12.addGeometry(Part.LineSegment(V(200.5844, 163.0844, 0), V(213.7922, 113.7922, 0)), False)
sketch12.addGeometry(Part.LineSegment(V(213.7922, 113.7922, 0), V(100, 0, 0)), False)
sketch12.addGeometry(Part.Circle(V(164.5, 127, 0), V(0, 0, 1), 4), False)
sketch12.addConstraint(Sketcher.Constraint("Coincident", 0, 2, 1, 1))
sketch12.addConstraint(Sketcher.Constraint("Coincident", 1, 2, 2, 1))
sketch12.addConstraint(Sketcher.Constraint("Coincident", 2, 2, 3, 1))
sketch12.addConstraint(Sketcher.Constraint("Coincident", 3, 2, 4, 1))
sketch12.addConstraint(Sketcher.Constraint("Coincident", 4, 2, 5, 1))
sketch12.addConstraint(Sketcher.Constraint("Coincident", 5, 2, 0, 1))
sketch12.addConstraint(Sketcher.Constraint("Horizontal", 0))
sketch12.addConstraint(Sketcher.Constraint("Vertical", 1))
sketch12.addConstraint(Sketcher.Constraint("Coincident", 0, 2, -1, 1))
sketch12.addConstraint(Sketcher.Constraint("Parallel", 2, 5))
sketch12.addConstraint(Sketcher.Constraint("Equal", 3, 4))
sketch12.addConstraint(Sketcher.Constraint("Diameter", 6, 8.0))
sketch12.addConstraint(Sketcher.Constraint("DistanceX", 0, 2, 0, 1, 100.0))
sketch12.addConstraint(Sketcher.Constraint("DistanceY", 1, 1, 1, 2, 25.0))
sketch12.addConstraint(Sketcher.Constraint("Angle", 2, Q("45 deg")))
sketch12.addConstraint(Sketcher.Constraint("Angle", 3, Q("-15 deg")))
sketch12.addConstraint(Sketcher.Constraint("Angle", 4, Q("-75 deg")))
sketch12.addConstraint(Sketcher.Constraint("DistanceY", -1, 1, 6, 3, 127.0))
sketch12.addConstraint(Sketcher.Constraint("DistanceX", -1, 1, 6, 3, 164.5))
sketch12.addConstraint(Sketcher.Constraint("Distance", 2, 213.9595))
sketch12.setExpression("Constraints[11]", "Params.sketch12_diameter")
sketch12.setExpression("Constraints[12]", "Params.sketch12_width")
sketch12.setExpression("Constraints[13]", "Params.sketch12_height")
pocket8 = body.newObject("PartDesign::Pocket", "Pocket007")
pocket8.Profile = sketch12
pocket8.setExpression("Length", "Params.pocket8_length")
pocket8.Reversed = True

sketch13 = body.newObject("Sketcher::SketchObject", "Sketch012")
sketch13.AttachmentSupport = (doc.getObject("XY_Plane"), [""])
sketch13.MapMode = "FlatFace"
sketch13.AttachmentOffset = App.Placement(V(0, 0, 20), App.Rotation())
sketch13.addGeometry(Part.Circle(V(90, 12.5, 0), V(0, 0, 1), 2.5), False)
sketch13.addGeometry(Part.Circle(V(15, 12.5, 0), V(0, 0, 1), 2.5), False)
sketch13.addConstraint(Sketcher.Constraint("Equal", 0, 1))
sketch13.addConstraint(Sketcher.Constraint("Horizontal", 0, 3, 1, 3))
sketch13.addConstraint(Sketcher.Constraint("Diameter", 0, 5.0))
sketch13.addConstraint(Sketcher.Constraint("DistanceX", 1, 3, 0, 3, 75.0))
sketch13.addConstraint(Sketcher.Constraint("DistanceY", -1, 1, 0, 3, 12.5))
sketch13.addConstraint(Sketcher.Constraint("DistanceX", -1, 1, 0, 3, 90.0))
sketch13.setExpression("Constraints[2]", "Params.sketch13_diameter")
pocket9 = body.newObject("PartDesign::Pocket", "Pocket008")
pocket9.Profile = sketch13
pocket9.Type = "ThroughAll"
pocket9.Reversed = True

sketch14 = body.newObject("Sketcher::SketchObject", "Sketch013")
sketch14.AttachmentSupport = (doc.getObject("XZ_Plane"), [""])
sketch14.MapMode = "FlatFace"
sketch14.AttachmentOffset = App.Placement(V(0, 0, -25), App.Rotation())
sketch14.addGeometry(Part.Circle(V(-24.528, 145, 0), V(0, 0, 1), 22.5), False)
sketch14.addConstraint(Sketcher.Constraint("Diameter", 0, 45.0))
sketch14.addConstraint(Sketcher.Constraint("DistanceY", -1, 1, 0, 3, 145.0))
sketch14.addConstraint(Sketcher.Constraint("DistanceX", 0, 3, -1, 1, 24.528))
sketch14.setExpression("Constraints[0]", "Params.sketch14_diameter")
pocket10 = body.newObject("PartDesign::Pocket", "Pocket009")
pocket10.Profile = sketch14
pocket10.Type = "ThroughAll"
pocket10.Reversed = True

sketch15 = body.newObject("Sketcher::SketchObject", "Sketch014")
sketch15.AttachmentSupport = (doc.getObject("XZ_Plane"), [""])
sketch15.MapMode = "FlatFace"
sketch15.AttachmentOffset = App.Placement(V(0, 0, -25), App.Rotation())
sketch15.addGeometry(Part.Circle(V(-75.528, 145, 0), V(0, 0, 1), 2.5), False)
sketch15.addGeometry(Part.Circle(V(-50.028, 189.1673, 0), V(0, 0, 1), 2.5), False)
sketch15.addGeometry(Part.Circle(V(0.972, 189.1673, 0), V(0, 0, 1), 2.5), False)
sketch15.addGeometry(Part.Circle(V(26.472, 145, 0), V(0, 0, 1), 2.5), False)
sketch15.addGeometry(Part.Circle(V(0.972, 100.8327, 0), V(0, 0, 1), 2.5), False)
sketch15.addGeometry(Part.Circle(V(-50.028, 100.8327, 0), V(0, 0, 1), 2.5), False)
sketch15.addConstraint(Sketcher.Constraint("Equal", 0, 1))
sketch15.addConstraint(Sketcher.Constraint("Equal", 1, 2))
sketch15.addConstraint(Sketcher.Constraint("Equal", 2, 3))
sketch15.addConstraint(Sketcher.Constraint("Equal", 3, 4))
sketch15.addConstraint(Sketcher.Constraint("Equal", 4, 5))
sketch15.addConstraint(Sketcher.Constraint("Horizontal", 1, 3, 2, 3))
sketch15.addConstraint(Sketcher.Constraint("Horizontal", 0, 3, 3, 3))
sketch15.addConstraint(Sketcher.Constraint("Horizontal", 4, 3, 5, 3))
sketch15.addConstraint(Sketcher.Constraint("Vertical", 2, 3, 4, 3))
sketch15.addConstraint(Sketcher.Constraint("Vertical", 1, 3, 5, 3))
sketch15.addConstraint(Sketcher.Constraint("Diameter", 0, 5.0))
sketch15.addConstraint(Sketcher.Constraint("DistanceX", 1, 3, 2, 3, 51.0))
sketch15.addConstraint(Sketcher.Constraint("DistanceY", -1, 1, 0, 3, 145.0))
sketch15.addConstraint(Sketcher.Constraint("DistanceX", 0, 3, 3, 3, 102.0))
sketch15.addConstraint(Sketcher.Constraint("DistanceX", 0, 3, 1, 3, 25.5))
sketch15.addConstraint(Sketcher.Constraint("DistanceX", 0, 3, -1, 1, 75.528))
sketch15.addConstraint(Sketcher.Constraint("DistanceY", -1, 1, 1, 3, 189.1673))
sketch15.addConstraint(Sketcher.Constraint("DistanceY", -1, 1, 4, 3, 100.8327))
sketch15.setExpression("Constraints[10]", "Params.sketch15_diameter")
pocket11 = body.newObject("PartDesign::Pocket", "Pocket010")
pocket11.Profile = sketch15
pocket11.Type = "ThroughAll"
pocket11.Reversed = True

doc.recompute()
